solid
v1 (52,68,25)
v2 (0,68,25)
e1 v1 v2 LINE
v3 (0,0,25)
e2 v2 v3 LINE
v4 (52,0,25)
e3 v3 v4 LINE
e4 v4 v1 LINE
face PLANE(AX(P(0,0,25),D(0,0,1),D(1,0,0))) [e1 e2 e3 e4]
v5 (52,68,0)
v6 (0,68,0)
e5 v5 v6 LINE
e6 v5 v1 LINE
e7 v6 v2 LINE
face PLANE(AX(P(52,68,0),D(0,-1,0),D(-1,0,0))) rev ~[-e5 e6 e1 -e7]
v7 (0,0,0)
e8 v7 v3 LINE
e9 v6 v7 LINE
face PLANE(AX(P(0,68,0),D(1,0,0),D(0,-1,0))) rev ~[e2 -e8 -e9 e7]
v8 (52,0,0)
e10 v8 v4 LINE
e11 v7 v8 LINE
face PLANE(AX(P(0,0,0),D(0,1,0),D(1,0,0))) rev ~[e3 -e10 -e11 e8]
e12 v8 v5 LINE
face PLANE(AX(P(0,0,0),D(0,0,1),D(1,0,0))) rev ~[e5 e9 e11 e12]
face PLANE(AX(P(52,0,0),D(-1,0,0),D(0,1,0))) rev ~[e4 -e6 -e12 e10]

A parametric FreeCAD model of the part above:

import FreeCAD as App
import Part
import Sketcher

V = App.Vector
Q = App.Units.Quantity


def add_polygon(sketch, points):
    """Adds a closed chain of lines whose ends are joined by coincident constraints."""
    first, n = sketch.GeometryCount, len(points)
    for a, b in zip(points, points[1:] + points[:1]):
        sketch.addGeometry(Part.LineSegment(App.Vector(*a, 0), App.Vector(*b, 0)), False)
    for i in range(n):
        sketch.addConstraint(Sketcher.Constraint("Coincident", first + i, 2, first + (i + 1) % n, 1))

doc = App.newDocument("Part")
params = doc.addObject("Spreadsheet::Sheet", "Params")
for row, (alias, value) in enumerate([
    ("sketch1_width", "52 mm"),
    ("sketch1_height", "68 mm"),
    ("pad1_length", "25 mm"),
], start=1):
    params.set(f"A{row}", alias)
    params.set(f"B{row}", "=" + value)
    params.setAlias(f"B{row}", alias)

body = doc.addObject("PartDesign::Body", "Body")

sketch1 = body.newObject("Sketcher::SketchObject", "Sketch")
sketch1.AttachmentSupport = (doc.getObject("XY_Plane"), [""])
sketch1.MapMode = "FlatFace"
add_polygon(sketch1, [(0, 68), (0, 0), (52, 0), (52, 68)])
sketch1.addConstraint(Sketcher.Constraint("Vertical", 0))
sketch1.addConstraint(Sketcher.Constraint("Horizontal", 1))
sketch1.addConstraint(Sketcher.Constraint("Vertical", 2))
sketch1.addConstraint(Sketcher.Constraint("Horizontal", 3))
sketch1.addConstraint(Sketcher.Constraint("Coincident", 0, 2, -1, 1))
sketch1.addConstraint(Sketcher.Constraint("DistanceX", 1, 1, 1, 2, Q("52 mm")))
sketch1.addConstraint(Sketcher.Constraint("DistanceY", 0, 2, 0, 1, Q("68 mm")))
sketch1.setExpression("Constraints[9]", "Params.sketch1_width")
sketch1.setExpression("Constraints[10]", "Params.sketch1_height")
pad1 = body.newObject("PartDesign::Pad", "Pad")
pad1.Profile = sketch1
pad1.setExpression("Length", "Params.pad1_length")

doc.recompute()
